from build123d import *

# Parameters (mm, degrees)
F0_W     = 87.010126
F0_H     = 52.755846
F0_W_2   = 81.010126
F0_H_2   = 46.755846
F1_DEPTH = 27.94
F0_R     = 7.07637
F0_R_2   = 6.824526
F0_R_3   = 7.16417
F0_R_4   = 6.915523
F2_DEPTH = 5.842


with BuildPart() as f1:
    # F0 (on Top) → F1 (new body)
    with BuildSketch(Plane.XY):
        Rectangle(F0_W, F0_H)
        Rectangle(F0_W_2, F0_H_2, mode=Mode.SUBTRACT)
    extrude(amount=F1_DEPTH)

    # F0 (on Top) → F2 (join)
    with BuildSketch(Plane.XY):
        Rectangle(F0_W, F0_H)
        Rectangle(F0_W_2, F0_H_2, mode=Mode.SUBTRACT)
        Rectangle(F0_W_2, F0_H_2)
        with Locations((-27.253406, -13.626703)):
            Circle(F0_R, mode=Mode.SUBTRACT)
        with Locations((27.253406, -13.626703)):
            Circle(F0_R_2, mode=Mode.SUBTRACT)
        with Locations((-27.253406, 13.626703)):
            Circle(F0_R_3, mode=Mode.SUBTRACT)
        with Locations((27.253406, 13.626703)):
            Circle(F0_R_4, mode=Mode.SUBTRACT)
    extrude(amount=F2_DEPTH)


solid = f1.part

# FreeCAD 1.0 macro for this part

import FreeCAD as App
import Part
import Sketcher

V = App.Vector
Q = App.Units.Quantity


def add_polygon(sketch, points):
    """Adds a closed chain of lines whose ends are joined by coincident constraints."""
    first, n = sketch.GeometryCount, len(points)
    for a, b in zip(points, points[1:] + points[:1]):
        sketch.addGeometry(Part.LineSegment(App.Vector(*a, 0), App.Vector(*b, 0)), False)
    for i in range(n):
        sketch.addConstraint(Sketcher.Constraint("Coincident", first + i, 2, first + (i + 1) % n, 1))

doc = App.newDocument("Part")
body = doc.addObject("PartDesign::Body", "Body")

# Sketch on XY plane
sketch1 = body.newObject("Sketcher::SketchObject", "Sketch")
sketch1.AttachmentSupport = (doc.getObject("XY_Plane"), [""])
sketch1.MapMode = "FlatFace"
add_polygon(sketch1, [(-44, 26), (-44, -26), (44, -26), (44, 26)])  # lines 0-3
add_polygon(sketch1, [(41, -23), (-41, -23), (-41, 23), (41, 23)])  # lines 4-7
sketch1.addConstraint([
    Sketcher.Constraint("Vertical", 0),
    Sketcher.Constraint("Horizontal", 1),
    Sketcher.Constraint("Vertical", 2),
    Sketcher.Constraint("Horizontal", 3),
    Sketcher.Constraint("Horizontal", 4),
    Sketcher.Constraint("Vertical", 5),
    Sketcher.Constraint("Horizontal", 6),
    Sketcher.Constraint("Vertical", 7),
    Sketcher.Constraint("Symmetric", 0, 2, 2, 2, -1, 1),
    Sketcher.Constraint("Symmetric", 4, 2, 6, 2, -1, 1),
    Sketcher.Constraint("DistanceX", 0, 2, 4, 2, 3.0),
    Sketcher.Constraint("DistanceY", 0, 2, 4, 2, 3.0),
    Sketcher.Constraint("DistanceX", 1, 1, 1, 2, 87.010126),
    Sketcher.Constraint("DistanceY", 0, 2, 0, 1, 52.755846),
])
pad1 = body.newObject("PartDesign::Pad", "Pad")
pad1.Profile = sketch1
pad1.Length = Q("1.1 in")

# Sketch on XY plane
sketch2 = body.newObject("Sketcher::SketchObject", "Sketch001")
sketch2.AttachmentSupport = (doc.getObject("XY_Plane"), [""])
sketch2.MapMode = "FlatFace"
add_polygon(sketch2, [(-44, 26), (-44, -26), (44, -26), (44, 26)])  # lines 0-3
sketch2.addGeometry(Part.Circle(V(-27, -14, 0), V(0, 0, 1), 7), False)  # 4
sketch2.addGeometry(Part.Circle(V(27, -14, 0), V(0, 0, 1), 7), False)  # 5
sketch2.addGeometry(Part.Circle(V(-27, 14, 0), V(0, 0, 1), 7), False)  # 6
sketch2.addGeometry(Part.Circle(V(27, 14, 0), V(0, 0, 1), 7), False)  # 7
sketch2.addConstraint([
    Sketcher.Constraint("Vertical", 0),
    Sketcher.Constraint("Horizontal", 1),
    Sketcher.Constraint("Vertical", 2),
    Sketcher.Constraint("Horizontal", 3),
    Sketcher.Constraint("Symmetric", 5, 3, 6, 3, -1, 1),
    Sketcher.Constraint("Symmetric", 4, 3, 7, 3, -1, 1),
    Sketcher.Constraint("Symmetric", 0, 2, 2, 2, -1, 1),
    Sketcher.Constraint("Symmetric", 4, 3, 5, 3, -2),
    Sketcher.Constraint("Diameter", 4, 14.15274),
    Sketcher.Constraint("Diameter", 5, 13.649052),
    Sketcher.Constraint("Diameter", 6, 14.32834),
    Sketcher.Constraint("Diameter", 7, 13.831046),
    Sketcher.Constraint("DistanceX", 1, 1, 1, 2, 87.010126),
    Sketcher.Constraint("DistanceY", 0, 2, 0, 1, 52.755846),
    Sketcher.Constraint("DistanceX", 4, 3, 5, 3, 54.506812),
    Sketcher.Constraint("DistanceY", 0, 2, 4, 3, 12.75122),
])
pad2 = body.newObject("PartDesign::Pad", "Pad001")
pad2.Profile = sketch2
pad2.Length = Q("0.23 in")

doc.recompute()
